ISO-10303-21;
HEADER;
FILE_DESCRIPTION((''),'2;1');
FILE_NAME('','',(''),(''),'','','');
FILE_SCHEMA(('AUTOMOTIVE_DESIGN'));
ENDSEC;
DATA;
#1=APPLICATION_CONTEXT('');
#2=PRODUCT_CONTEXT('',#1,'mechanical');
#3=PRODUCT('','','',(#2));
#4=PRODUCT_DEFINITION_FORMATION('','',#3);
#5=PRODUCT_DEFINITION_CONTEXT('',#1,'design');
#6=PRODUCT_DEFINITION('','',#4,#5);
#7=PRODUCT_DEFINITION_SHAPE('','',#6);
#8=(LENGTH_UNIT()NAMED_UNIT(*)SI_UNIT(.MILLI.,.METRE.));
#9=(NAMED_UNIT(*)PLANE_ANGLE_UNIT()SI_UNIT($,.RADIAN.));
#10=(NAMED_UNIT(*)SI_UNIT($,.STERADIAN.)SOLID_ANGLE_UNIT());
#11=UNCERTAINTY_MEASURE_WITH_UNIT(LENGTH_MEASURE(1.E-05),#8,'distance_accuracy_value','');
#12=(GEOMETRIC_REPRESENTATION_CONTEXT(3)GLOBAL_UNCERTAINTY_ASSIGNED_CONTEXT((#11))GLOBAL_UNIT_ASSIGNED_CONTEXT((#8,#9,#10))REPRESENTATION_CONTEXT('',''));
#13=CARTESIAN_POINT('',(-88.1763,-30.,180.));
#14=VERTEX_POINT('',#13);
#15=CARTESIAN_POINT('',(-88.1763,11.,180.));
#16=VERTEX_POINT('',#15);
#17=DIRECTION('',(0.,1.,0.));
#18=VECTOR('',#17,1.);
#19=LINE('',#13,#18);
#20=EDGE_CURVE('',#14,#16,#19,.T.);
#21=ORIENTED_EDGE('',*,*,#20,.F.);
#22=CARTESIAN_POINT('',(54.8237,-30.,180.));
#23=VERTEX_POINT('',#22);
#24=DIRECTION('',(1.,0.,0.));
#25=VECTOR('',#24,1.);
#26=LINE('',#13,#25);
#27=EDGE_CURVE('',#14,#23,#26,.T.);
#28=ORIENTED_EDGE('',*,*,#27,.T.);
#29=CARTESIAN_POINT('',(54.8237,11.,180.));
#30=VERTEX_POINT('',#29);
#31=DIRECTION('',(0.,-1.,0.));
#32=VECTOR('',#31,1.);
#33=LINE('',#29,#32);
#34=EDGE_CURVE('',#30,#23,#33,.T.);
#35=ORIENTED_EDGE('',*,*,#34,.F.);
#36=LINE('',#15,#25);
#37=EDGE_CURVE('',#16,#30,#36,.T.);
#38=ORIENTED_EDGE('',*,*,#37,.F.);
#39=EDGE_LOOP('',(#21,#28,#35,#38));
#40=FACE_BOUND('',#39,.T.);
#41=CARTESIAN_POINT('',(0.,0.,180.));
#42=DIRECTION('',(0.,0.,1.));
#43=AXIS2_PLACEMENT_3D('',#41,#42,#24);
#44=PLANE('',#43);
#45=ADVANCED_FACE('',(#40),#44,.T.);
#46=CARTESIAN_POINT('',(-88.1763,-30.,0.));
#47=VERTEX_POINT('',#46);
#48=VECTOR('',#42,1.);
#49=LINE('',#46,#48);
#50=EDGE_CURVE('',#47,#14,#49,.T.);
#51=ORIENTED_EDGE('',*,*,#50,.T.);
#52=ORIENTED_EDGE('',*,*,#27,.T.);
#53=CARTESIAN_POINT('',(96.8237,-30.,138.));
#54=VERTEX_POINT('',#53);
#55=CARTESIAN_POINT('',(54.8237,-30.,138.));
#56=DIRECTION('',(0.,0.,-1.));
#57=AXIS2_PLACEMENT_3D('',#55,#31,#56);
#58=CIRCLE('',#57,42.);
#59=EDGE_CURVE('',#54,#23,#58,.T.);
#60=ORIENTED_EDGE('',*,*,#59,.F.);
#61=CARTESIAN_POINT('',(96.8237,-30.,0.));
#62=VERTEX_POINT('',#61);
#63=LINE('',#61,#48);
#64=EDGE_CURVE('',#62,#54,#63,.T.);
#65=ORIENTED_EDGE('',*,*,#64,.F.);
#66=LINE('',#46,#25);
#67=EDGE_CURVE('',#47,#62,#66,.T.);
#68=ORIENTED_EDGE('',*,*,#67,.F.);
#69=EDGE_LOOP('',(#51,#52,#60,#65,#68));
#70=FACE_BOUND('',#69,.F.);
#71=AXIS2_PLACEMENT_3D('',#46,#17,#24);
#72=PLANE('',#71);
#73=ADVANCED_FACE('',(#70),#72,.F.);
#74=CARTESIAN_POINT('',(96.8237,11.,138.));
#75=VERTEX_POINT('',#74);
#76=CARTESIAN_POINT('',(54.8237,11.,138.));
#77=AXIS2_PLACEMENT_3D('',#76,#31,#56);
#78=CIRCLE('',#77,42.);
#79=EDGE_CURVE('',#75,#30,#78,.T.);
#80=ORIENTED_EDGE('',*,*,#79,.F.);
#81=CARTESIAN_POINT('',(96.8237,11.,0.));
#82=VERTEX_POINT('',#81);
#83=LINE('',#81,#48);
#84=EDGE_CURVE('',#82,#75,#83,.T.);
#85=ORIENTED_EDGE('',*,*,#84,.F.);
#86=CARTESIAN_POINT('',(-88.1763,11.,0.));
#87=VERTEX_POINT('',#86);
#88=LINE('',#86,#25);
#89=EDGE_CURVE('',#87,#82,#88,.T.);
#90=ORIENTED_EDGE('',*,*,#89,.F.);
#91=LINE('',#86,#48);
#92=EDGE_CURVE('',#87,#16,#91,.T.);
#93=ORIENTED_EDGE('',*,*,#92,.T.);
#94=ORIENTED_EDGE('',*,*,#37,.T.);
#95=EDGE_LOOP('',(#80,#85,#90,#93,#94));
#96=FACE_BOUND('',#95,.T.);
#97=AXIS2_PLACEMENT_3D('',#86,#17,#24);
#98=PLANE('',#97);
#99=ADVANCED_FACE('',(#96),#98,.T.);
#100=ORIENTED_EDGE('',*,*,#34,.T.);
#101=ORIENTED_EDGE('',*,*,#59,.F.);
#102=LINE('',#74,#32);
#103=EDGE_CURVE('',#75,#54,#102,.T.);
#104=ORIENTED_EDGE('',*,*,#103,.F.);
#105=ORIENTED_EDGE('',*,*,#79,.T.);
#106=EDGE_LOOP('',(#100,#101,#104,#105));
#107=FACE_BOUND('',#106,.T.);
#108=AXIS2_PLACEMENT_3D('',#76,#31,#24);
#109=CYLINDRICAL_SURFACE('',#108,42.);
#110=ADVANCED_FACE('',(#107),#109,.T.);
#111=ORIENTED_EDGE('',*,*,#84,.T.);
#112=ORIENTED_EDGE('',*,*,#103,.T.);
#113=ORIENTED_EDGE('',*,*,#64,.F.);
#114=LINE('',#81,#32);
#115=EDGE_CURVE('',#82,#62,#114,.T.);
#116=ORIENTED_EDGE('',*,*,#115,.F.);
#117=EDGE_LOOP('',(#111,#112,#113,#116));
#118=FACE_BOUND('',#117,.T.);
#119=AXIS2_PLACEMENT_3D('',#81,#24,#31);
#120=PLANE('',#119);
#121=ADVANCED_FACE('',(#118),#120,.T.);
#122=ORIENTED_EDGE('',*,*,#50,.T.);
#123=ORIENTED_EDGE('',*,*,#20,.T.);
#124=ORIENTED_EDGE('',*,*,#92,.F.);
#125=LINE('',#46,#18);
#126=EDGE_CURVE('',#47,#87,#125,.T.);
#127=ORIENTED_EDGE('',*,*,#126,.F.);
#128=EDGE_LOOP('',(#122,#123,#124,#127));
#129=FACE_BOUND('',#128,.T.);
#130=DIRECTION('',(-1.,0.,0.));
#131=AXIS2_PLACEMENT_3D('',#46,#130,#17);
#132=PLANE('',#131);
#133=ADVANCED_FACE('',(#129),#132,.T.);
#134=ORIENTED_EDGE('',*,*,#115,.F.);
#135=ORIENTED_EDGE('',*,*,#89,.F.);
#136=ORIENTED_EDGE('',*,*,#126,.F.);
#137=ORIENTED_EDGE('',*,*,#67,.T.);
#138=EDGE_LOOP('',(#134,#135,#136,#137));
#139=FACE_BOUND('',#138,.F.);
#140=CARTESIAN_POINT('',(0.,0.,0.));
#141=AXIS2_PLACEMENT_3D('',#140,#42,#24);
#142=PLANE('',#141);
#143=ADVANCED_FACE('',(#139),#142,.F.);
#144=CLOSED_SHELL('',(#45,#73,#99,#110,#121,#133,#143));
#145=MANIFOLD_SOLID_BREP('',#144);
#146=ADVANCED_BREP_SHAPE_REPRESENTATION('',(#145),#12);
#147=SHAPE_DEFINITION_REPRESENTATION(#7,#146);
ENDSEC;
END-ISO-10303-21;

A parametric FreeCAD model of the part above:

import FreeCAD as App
import Part
import Sketcher
Q = App.Units.Quantity


def edges_at(feature, points):
    """Names of the edges that pass closest to the given points."""
    edges = feature.Shape.Edges
    near = lambda p: min(range(len(edges)), key=lambda i: edges[i].distToShape(Part.Vertex(*p))[0])
    return sorted({f"Edge{near(p) + 1}" for p in points})


def add_polygon(sketch, points):
    """Adds a closed chain of lines whose ends are joined by coincident constraints."""
    first, n = sketch.GeometryCount, len(points)
    for a, b in zip(points, points[1:] + points[:1]):
        sketch.addGeometry(Part.LineSegment(App.Vector(*a, 0), App.Vector(*b, 0)), False)
    for i in range(n):
        sketch.addConstraint(Sketcher.Constraint("Coincident", first + i, 2, first + (i + 1) % n, 1))

doc = App.newDocument("Part")
params = doc.addObject("Spreadsheet::Sheet", "Params")
for row, (alias, value) in enumerate([
    ("sketch1_width", "185 mm"),
    ("sketch1_height", "41 mm"),
    ("pad1_length", "180 mm"),
    ("fillet_radius", "42 mm"),
], start=1):
    params.set(f"A{row}", alias)
    params.set(f"B{row}", "=" + value)
    params.setAlias(f"B{row}", alias)

body = doc.addObject("PartDesign::Body", "Body")

# Sketch on XY plane
sketch1 = body.newObject("Sketcher::SketchObject", "Sketch")
sketch1.AttachmentSupport = (doc.getObject("XY_Plane"), [""])
sketch1.MapMode = "FlatFace"
add_polygon(sketch1, [(-88.1763, 11), (-88.1763, -30), (96.8237, -30), (96.8237, 11)])  # lines 0-3
sketch1.addConstraint(Sketcher.Constraint("Vertical", 0))
sketch1.addConstraint(Sketcher.Constraint("Horizontal", 1))
sketch1.addConstraint(Sketcher.Constraint("Vertical", 2))
sketch1.addConstraint(Sketcher.Constraint("Horizontal", 3))
sketch1.addConstraint(Sketcher.Constraint("DistanceX", 1, 1, 1, 2, Q("185 mm")))
sketch1.addConstraint(Sketcher.Constraint("DistanceY", 0, 2, 0, 1, Q("41 mm")))
sketch1.addConstraint(Sketcher.Constraint("DistanceY", 0, 2, -1, 1, Q("30 mm")))
sketch1.addConstraint(Sketcher.Constraint("DistanceX", 0, 2, -1, 1, Q("88.1763 mm")))
sketch1.setExpression("Constraints[8]", "Params.sketch1_width")
sketch1.setExpression("Constraints[9]", "Params.sketch1_height")
pad1 = body.newObject("PartDesign::Pad", "Pad")
pad1.Profile = sketch1
pad1.setExpression("Length", "Params.pad1_length")
doc.recompute()

fillet = body.newObject("PartDesign::Fillet", "Fillet")
fillet.Base = (pad1, edges_at(pad1, [(96.824, -9.5, 180)]))
fillet.setExpression("Radius", "Params.fillet_radius")

doc.recompute()
